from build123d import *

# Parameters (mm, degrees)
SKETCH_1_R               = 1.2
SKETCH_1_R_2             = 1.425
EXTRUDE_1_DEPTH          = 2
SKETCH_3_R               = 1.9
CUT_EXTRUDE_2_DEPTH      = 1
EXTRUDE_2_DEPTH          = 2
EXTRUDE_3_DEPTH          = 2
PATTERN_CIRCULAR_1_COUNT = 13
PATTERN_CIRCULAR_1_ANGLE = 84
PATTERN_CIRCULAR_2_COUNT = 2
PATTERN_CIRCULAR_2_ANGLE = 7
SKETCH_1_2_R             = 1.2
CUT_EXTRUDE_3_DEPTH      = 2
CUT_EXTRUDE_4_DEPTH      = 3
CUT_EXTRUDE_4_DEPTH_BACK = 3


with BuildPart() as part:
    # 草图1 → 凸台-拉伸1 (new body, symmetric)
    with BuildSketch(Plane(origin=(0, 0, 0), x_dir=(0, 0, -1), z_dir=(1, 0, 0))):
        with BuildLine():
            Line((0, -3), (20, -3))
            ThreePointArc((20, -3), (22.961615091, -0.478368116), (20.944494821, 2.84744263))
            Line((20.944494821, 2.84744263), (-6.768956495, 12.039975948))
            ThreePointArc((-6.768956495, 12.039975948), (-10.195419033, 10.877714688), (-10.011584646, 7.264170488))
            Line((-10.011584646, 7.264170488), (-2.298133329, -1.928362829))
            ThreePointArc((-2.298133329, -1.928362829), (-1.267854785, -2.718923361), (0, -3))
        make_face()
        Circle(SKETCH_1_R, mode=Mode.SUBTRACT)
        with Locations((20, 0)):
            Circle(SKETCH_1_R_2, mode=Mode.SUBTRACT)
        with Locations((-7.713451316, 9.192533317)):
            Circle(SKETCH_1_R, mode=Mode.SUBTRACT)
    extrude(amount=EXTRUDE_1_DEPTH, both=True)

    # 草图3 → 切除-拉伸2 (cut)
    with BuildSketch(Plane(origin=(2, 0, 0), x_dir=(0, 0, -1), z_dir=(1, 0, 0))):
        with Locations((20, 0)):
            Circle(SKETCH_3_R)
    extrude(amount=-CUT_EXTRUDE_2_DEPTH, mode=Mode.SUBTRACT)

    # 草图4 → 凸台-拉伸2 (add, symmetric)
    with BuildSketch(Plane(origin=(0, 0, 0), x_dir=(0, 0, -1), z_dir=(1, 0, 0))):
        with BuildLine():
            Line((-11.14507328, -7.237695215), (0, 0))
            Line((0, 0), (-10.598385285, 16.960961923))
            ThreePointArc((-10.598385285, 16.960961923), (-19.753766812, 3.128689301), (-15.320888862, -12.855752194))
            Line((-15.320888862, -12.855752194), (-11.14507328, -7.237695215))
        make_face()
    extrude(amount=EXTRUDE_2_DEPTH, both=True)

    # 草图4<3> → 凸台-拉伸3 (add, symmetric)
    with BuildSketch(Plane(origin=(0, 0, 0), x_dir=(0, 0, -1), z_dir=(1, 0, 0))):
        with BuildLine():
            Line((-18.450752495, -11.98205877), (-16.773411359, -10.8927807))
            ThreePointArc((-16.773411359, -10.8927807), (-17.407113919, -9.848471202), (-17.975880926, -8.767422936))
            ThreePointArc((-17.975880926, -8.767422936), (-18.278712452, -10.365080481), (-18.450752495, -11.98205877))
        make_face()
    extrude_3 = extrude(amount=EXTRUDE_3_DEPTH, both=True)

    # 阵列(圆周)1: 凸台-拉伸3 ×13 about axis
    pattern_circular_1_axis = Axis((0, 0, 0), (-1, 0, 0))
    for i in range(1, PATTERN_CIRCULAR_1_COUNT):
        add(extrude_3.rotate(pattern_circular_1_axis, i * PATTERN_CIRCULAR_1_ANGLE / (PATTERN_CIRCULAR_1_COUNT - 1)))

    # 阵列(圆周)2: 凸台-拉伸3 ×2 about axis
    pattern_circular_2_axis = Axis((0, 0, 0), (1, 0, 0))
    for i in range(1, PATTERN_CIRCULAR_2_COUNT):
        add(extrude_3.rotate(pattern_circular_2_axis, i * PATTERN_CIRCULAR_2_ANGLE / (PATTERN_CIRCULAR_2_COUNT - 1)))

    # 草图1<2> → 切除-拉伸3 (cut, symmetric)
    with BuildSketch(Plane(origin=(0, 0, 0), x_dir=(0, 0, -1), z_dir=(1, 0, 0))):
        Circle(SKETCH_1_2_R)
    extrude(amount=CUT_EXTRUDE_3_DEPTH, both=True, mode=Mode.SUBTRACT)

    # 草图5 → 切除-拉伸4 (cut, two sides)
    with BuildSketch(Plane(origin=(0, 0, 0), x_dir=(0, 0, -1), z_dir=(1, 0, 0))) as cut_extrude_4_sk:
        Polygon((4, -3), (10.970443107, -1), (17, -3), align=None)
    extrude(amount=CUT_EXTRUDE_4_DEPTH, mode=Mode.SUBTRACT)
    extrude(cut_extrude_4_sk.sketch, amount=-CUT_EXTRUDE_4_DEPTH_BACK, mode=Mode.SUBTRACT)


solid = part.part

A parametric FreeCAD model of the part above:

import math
import FreeCAD as App
import Part
import Sketcher
from FreeCAD import Vector
Q = App.Units.Quantity


def add_polygon(sketch, points):
    """Adds a closed chain of lines whose ends are joined by coincident constraints."""
    first, n = sketch.GeometryCount, len(points)
    for a, b in zip(points, points[1:] + points[:1]):
        sketch.addGeometry(Part.LineSegment(App.Vector(*a, 0), App.Vector(*b, 0)), False)
    for i in range(n):
        sketch.addConstraint(Sketcher.Constraint("Coincident", first + i, 2, first + (i + 1) % n, 1))

doc = App.newDocument("Part")
body = doc.addObject("PartDesign::Body", "Body")

sketch1 = doc.addObject("Sketcher::SketchObject", "Sketch")
body.addObject(sketch1)
sketch1.AttachmentSupport = (doc.YZ_Plane, [""])
sketch1.MapMode = "FlatFace"
sketch1.addGeometry(Part.LineSegment(Vector(-3, 0, 0), Vector(-3, -20, 0)), False)
sketch1.addGeometry(Part.ArcOfCircle(Part.Circle(Vector(0, -20, 0), Vector(0, 0, 1), 3), math.radians(180), math.radians(341.649352)), False)
sketch1.addGeometry(Part.LineSegment(Vector(2.847443, -20.944495, 0), Vector(12.039976, 6.768956, 0)), False)
sketch1.addGeometry(Part.ArcOfCircle(Part.Circle(Vector(9.192533, 7.713451, 0), Vector(0, 0, 1), 3), math.radians(-18.350648), math.radians(130)), False)
sketch1.addGeometry(Part.LineSegment(Vector(7.26417, 10.011585, 0), Vector(-1.928363, 2.298133, 0)), False)
sketch1.addGeometry(Part.ArcOfCircle(Part.Circle(Vector(0, 0, 0), Vector(0, 0, 1), 3), math.radians(130), math.radians(180)), False)
sketch1.addGeometry(Part.Circle(Vector(0, 0, 0), Vector(0, 0, 1), 1.2), False)
sketch1.addGeometry(Part.Circle(Vector(0, -20, 0), Vector(0, 0, 1), 1.425), False)
sketch1.addGeometry(Part.Circle(Vector(9.192533, 7.713451, 0), Vector(0, 0, 1), 1.2), False)
sketch1.addConstraint(Sketcher.Constraint("Tangent", 0, 2, 1, 1))
sketch1.addConstraint(Sketcher.Constraint("Tangent", 1, 2, 2, 1))
sketch1.addConstraint(Sketcher.Constraint("Tangent", 2, 2, 3, 1))
sketch1.addConstraint(Sketcher.Constraint("Tangent", 3, 2, 4, 1))
sketch1.addConstraint(Sketcher.Constraint("Tangent", 4, 2, 5, 1))
sketch1.addConstraint(Sketcher.Constraint("Tangent", 5, 2, 0, 1))
sketch1.addConstraint(Sketcher.Constraint("Vertical", 0))
sketch1.addConstraint(Sketcher.Constraint("Coincident", 5, 3, -1, 1))
sketch1.addConstraint(Sketcher.Constraint("Coincident", 6, 3, -1, 1))
sketch1.addConstraint(Sketcher.Constraint("Coincident", 7, 3, 1, 3))
sketch1.addConstraint(Sketcher.Constraint("Coincident", 8, 3, 3, 3))
sketch1.addConstraint(Sketcher.Constraint("Equal", 1, 3))
sketch1.addConstraint(Sketcher.Constraint("Equal", 3, 5))
sketch1.addConstraint(Sketcher.Constraint("Equal", 6, 8))
sketch1.addConstraint(Sketcher.Constraint("Radius", 1, Q("3 mm")))
sketch1.addConstraint(Sketcher.Constraint("Diameter", 6, Q("2.4 mm")))
sketch1.addConstraint(Sketcher.Constraint("Diameter", 7, Q("2.85 mm")))
sketch1.addConstraint(Sketcher.Constraint("DistanceY", 0, 2, 0, 1, Q("20 mm")))
sketch1.addConstraint(Sketcher.Constraint("Angle", 4, Q("-140 deg")))
sketch1.addConstraint(Sketcher.Constraint("Distance", 4, Q("12 mm")))
pad1 = doc.addObject("PartDesign::Pad", "Pad")
body.addObject(pad1)
pad1.Profile = sketch1
pad1.Length = 4
pad1.Midplane = True

sketch2 = doc.addObject("Sketcher::SketchObject", "Sketch001")
body.addObject(sketch2)
sketch2.AttachmentSupport = (doc.YZ_Plane, [""])
sketch2.MapMode = "FlatFace"
sketch2.AttachmentOffset = App.Placement(Vector(0, 0, 2), App.Rotation())
sketch2.addGeometry(Part.Circle(Vector(0, -20, 0), Vector(0, 0, 1), 1.9), False)
sketch2.addConstraint(Sketcher.Constraint("PointOnObject", 0, 3, -2))
sketch2.addConstraint(Sketcher.Constraint("Diameter", 0, Q("3.8 mm")))
sketch2.addConstraint(Sketcher.Constraint("DistanceY", 0, 3, -1, 1, Q("20 mm")))
pocket1 = doc.addObject("PartDesign::Pocket", "Pocket")
body.addObject(pocket1)
pocket1.Profile = sketch2
pocket1.Length = 1

sketch3 = doc.addObject("Sketcher::SketchObject", "Sketch002")
body.addObject(sketch3)
sketch3.AttachmentSupport = (doc.YZ_Plane, [""])
sketch3.MapMode = "FlatFace"
sketch3.addGeometry(Part.LineSegment(Vector(-7.237695, 11.145073, 0), Vector(0, 0, 0)), False)
sketch3.addGeometry(Part.LineSegment(Vector(0, 0, 0), Vector(16.960962, 10.598385, 0)), False)
sketch3.addGeometry(Part.ArcOfCircle(Part.Circle(Vector(0, 0, 0), Vector(0, 0, 1), 20), math.radians(32), math.radians(130)), False)
sketch3.addGeometry(Part.LineSegment(Vector(-12.855752, 15.320889, 0), Vector(-7.237695, 11.145073, 0)), False)
sketch3.addConstraint(Sketcher.Constraint("Coincident", 0, 2, 1, 1))
sketch3.addConstraint(Sketcher.Constraint("Coincident", 1, 2, 2, 1))
sketch3.addConstraint(Sketcher.Constraint("Coincident", 2, 2, 3, 1))
sketch3.addConstraint(Sketcher.Constraint("Coincident", 3, 2, 0, 1))
sketch3.addConstraint(Sketcher.Constraint("Coincident", 2, 3, -1, 1))
sketch3.addConstraint(Sketcher.Constraint("Coincident", 0, 2, -1, 1))
sketch3.addConstraint(Sketcher.Constraint("Radius", 2, Q("20 mm")))
sketch3.addConstraint(Sketcher.Constraint("Angle", 0, Q("-57 deg")))
sketch3.addConstraint(Sketcher.Constraint("Angle", 1, Q("32 deg")))
sketch3.addConstraint(Sketcher.Constraint("Distance", 3, Q("7 mm")))
sketch3.addConstraint(Sketcher.Constraint("DistanceY", -1, 1, 2, 2, Q("15.320889 mm")))
pad2 = doc.addObject("PartDesign::Pad", "Pad001")
body.addObject(pad2)
pad2.Profile = sketch3
pad2.Length = 4
pad2.Midplane = True

sketch4 = doc.addObject("Sketcher::SketchObject", "Sketch003")
body.addObject(sketch4)
sketch4.AttachmentSupport = (doc.YZ_Plane, [""])
sketch4.MapMode = "FlatFace"
sketch4.addGeometry(Part.LineSegment(Vector(-11.982059, 18.450752, 0), Vector(-10.892781, 16.773411, 0)), False)
sketch4.addGeometry(Part.ArcOfCircle(Part.Circle(Vector(0, 0, 0), Vector(0, 0, 1), 20), math.radians(116), math.radians(123)), False)
sketch4.addGeometry(Part.ArcOfCircle(Part.Circle(Vector(-13.287798, -1.506578, 0), Vector(0, 0, 1), 20), math.radians(76.937209), math.radians(86.256671)), False)
sketch4.addConstraint(Sketcher.Constraint("Coincident", 0, 2, 1, 2))
sketch4.addConstraint(Sketcher.Constraint("Coincident", 1, 1, 2, 1))
sketch4.addConstraint(Sketcher.Constraint("Coincident", 2, 2, 0, 1))
sketch4.addConstraint(Sketcher.Constraint("Coincident", 1, 3, -1, 1))
sketch4.addConstraint(Sketcher.Constraint("Equal", 1, 2))
sketch4.addConstraint(Sketcher.Constraint("Radius", 1, Q("20 mm")))
sketch4.addConstraint(Sketcher.Constraint("Angle", 0, Q("-57 deg")))
sketch4.addConstraint(Sketcher.Constraint("Distance", 0, Q("2 mm")))
sketch4.addConstraint(Sketcher.Constraint("DistanceY", 2, 3, -1, 1, Q("1.506578 mm")))
sketch4.addConstraint(Sketcher.Constraint("DistanceX", 0, 2, -1, 1, Q("10.892781 mm")))
pad3 = doc.addObject("PartDesign::Pad", "Pad002")
body.addObject(pad3)
pad3.Profile = sketch4
pad3.Length = 4
pad3.Midplane = True
doc.recompute()

polarpattern = doc.addObject("PartDesign::PolarPattern", "PolarPattern")
body.addObject(polarpattern)
polarpattern.Originals = [pad3]
polarpattern.Axis = (doc.X_Axis, [""])
polarpattern.Angle = 84
polarpattern.Occurrences = 13
polarpattern.Reversed = True
body.Tip = polarpattern
doc.recompute()

polarpattern2 = doc.addObject("PartDesign::PolarPattern", "PolarPattern001")
body.addObject(polarpattern2)
polarpattern2.Originals = [pad3]
polarpattern2.Axis = (doc.X_Axis, [""])
polarpattern2.Angle = 7
polarpattern2.Occurrences = 2
body.Tip = polarpattern2

sketch5 = doc.addObject("Sketcher::SketchObject", "Sketch004")
body.addObject(sketch5)
sketch5.AttachmentSupport = (doc.YZ_Plane, [""])
sketch5.MapMode = "FlatFace"
sketch5.addGeometry(Part.Circle(Vector(0, 0, 0), Vector(0, 0, 1), 1.2), False)
sketch5.addConstraint(Sketcher.Constraint("Coincident", 0, 3, -1, 1))
sketch5.addConstraint(Sketcher.Constraint("Diameter", 0, Q("2.4 mm")))
pocket2 = doc.addObject("PartDesign::Pocket", "Pocket001")
body.addObject(pocket2)
pocket2.Profile = sketch5
pocket2.Length = 4
pocket2.Midplane = True

sketch6 = doc.addObject("Sketcher::SketchObject", "Sketch005")
body.addObject(sketch6)
sketch6.AttachmentSupport = (doc.YZ_Plane, [""])
sketch6.MapMode = "FlatFace"
add_polygon(sketch6, [(-1, -10.970443), (-3, -4), (-3, -17)])
sketch6.addConstraint(Sketcher.Constraint("Vertical", 1))
sketch6.addConstraint(Sketcher.Constraint("DistanceY", 1, 2, 1, 1, Q("13 mm")))
sketch6.addConstraint(Sketcher.Constraint("DistanceX", 0, 2, -1, 1, Q("3 mm")))
sketch6.addConstraint(Sketcher.Constraint("DistanceY", 0, 2, -1, 1, Q("4 mm")))
sketch6.addConstraint(Sketcher.Constraint("DistanceX", 2, 2, -1, 1, Q("1 mm")))
sketch6.addConstraint(Sketcher.Constraint("Distance", 0, Q("7.251695 mm")))
pocket3 = doc.addObject("PartDesign::Pocket", "Pocket002")
body.addObject(pocket3)
pocket3.Profile = sketch6
pocket3.Type = "ThroughAll"
pocket3.Midplane = True

doc.recompute()
